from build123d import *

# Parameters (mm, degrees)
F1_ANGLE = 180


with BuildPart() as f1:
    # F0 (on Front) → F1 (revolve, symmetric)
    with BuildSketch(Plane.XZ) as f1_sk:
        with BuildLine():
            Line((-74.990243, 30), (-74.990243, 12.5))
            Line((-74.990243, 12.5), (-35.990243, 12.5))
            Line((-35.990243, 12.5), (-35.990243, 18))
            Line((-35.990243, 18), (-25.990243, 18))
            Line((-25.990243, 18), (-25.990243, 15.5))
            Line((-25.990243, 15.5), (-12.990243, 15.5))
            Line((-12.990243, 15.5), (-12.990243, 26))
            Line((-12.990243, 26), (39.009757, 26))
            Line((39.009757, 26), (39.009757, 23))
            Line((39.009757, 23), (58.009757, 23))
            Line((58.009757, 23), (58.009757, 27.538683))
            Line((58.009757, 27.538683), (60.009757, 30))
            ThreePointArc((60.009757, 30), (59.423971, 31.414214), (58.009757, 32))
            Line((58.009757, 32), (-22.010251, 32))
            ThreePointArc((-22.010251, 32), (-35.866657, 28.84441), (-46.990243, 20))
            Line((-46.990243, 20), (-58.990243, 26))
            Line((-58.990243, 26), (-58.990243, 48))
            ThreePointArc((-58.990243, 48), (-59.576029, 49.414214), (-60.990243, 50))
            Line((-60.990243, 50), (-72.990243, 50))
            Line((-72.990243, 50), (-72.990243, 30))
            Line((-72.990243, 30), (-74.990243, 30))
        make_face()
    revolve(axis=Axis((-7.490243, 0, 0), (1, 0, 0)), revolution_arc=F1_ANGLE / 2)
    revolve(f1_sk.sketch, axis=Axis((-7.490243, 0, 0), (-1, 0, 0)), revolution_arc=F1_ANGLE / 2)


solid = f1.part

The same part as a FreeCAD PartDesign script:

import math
import FreeCAD as App
import Part
import Sketcher

V = App.Vector
Q = App.Units.Quantity

doc = App.newDocument("Part")
body = doc.addObject("PartDesign::Body", "Body")

# Sketch on XZ plane
sketch1 = doc.addObject("Sketcher::SketchObject", "Sketch")
body.addObject(sketch1)
sketch1.AttachmentSupport = (doc.XZ_Plane, [""])
sketch1.MapMode = "FlatFace"
sketch1.addGeometry([
    Part.LineSegment(V(-75, 30, 0), V(-75, 12.5, 0)),  # 0
    Part.LineSegment(V(-75, 12.5, 0), V(-36, 12.5, 0)),  # 1
    Part.LineSegment(V(-36, 12.5, 0), V(-36, 18, 0)),  # 2
    Part.LineSegment(V(-36, 18, 0), V(-26, 18, 0)),  # 3
    Part.LineSegment(V(-26, 18, 0), V(-26, 15.5, 0)),  # 4
    Part.LineSegment(V(-26, 15.5, 0), V(-13, 15.5, 0)),  # 5
    Part.LineSegment(V(-13, 15.5, 0), V(-13, 26, 0)),  # 6
    Part.LineSegment(V(-13, 26, 0), V(39, 26, 0)),  # 7
    Part.LineSegment(V(39, 26, 0), V(39, 23, 0)),  # 8
    Part.LineSegment(V(39, 23, 0), V(58, 23, 0)),  # 9
    Part.LineSegment(V(58, 23, 0), V(58, 27.5, 0)),  # 10
    Part.LineSegment(V(58, 27.5, 0), V(60, 30, 0)),  # 11
    Part.ArcOfCircle(Part.Circle(V(58, 30, 0), V(0, 0, 1), 2), math.radians(0), math.radians(90)),  # 12
    Part.LineSegment(V(58, 32, 0), V(-22, 32, 0)),  # 13
    Part.ArcOfCircle(Part.Circle(V(-22, 0, 0), V(0, 0, 1), 32), math.radians(90), math.radians(141)),  # 14
    Part.LineSegment(V(-47, 20, 0), V(-59, 26, 0)),  # 15
    Part.LineSegment(V(-59, 26, 0), V(-59, 48, 0)),  # 16
    Part.ArcOfCircle(Part.Circle(V(-61, 48, 0), V(0, 0, 1), 2), math.radians(0), math.radians(90)),  # 17
    Part.LineSegment(V(-61, 50, 0), V(-73, 50, 0)),  # 18
    Part.LineSegment(V(-73, 50, 0), V(-73, 30, 0)),  # 19
    Part.LineSegment(V(-73, 30, 0), V(-75, 30, 0)),  # 20
], False)
sketch1.addConstraint([
    Sketcher.Constraint("Coincident", 0, 2, 1, 1),
    Sketcher.Constraint("Coincident", 1, 2, 2, 1),
    Sketcher.Constraint("Coincident", 2, 2, 3, 1),
    Sketcher.Constraint("Coincident", 3, 2, 4, 1),
    Sketcher.Constraint("Coincident", 4, 2, 5, 1),
    Sketcher.Constraint("Coincident", 5, 2, 6, 1),
    Sketcher.Constraint("Coincident", 6, 2, 7, 1),
    Sketcher.Constraint("Coincident", 7, 2, 8, 1),
    Sketcher.Constraint("Coincident", 8, 2, 9, 1),
    Sketcher.Constraint("Coincident", 9, 2, 10, 1),
    Sketcher.Constraint("Coincident", 10, 2, 11, 1),
    Sketcher.Constraint("Coincident", 11, 2, 12, 1),
    Sketcher.Constraint("Tangent", 12, 2, 13, 1),
    Sketcher.Constraint("Tangent", 13, 2, 14, 1),
    Sketcher.Constraint("Coincident", 14, 2, 15, 1),
    Sketcher.Constraint("Coincident", 15, 2, 16, 1),
    Sketcher.Constraint("Tangent", 16, 2, 17, 1),
    Sketcher.Constraint("Tangent", 17, 2, 18, 1),
    Sketcher.Constraint("Coincident", 18, 2, 19, 1),
    Sketcher.Constraint("Coincident", 19, 2, 20, 1),
    Sketcher.Constraint("Coincident", 20, 2, 0, 1),
    Sketcher.Constraint("Vertical", 0),
    Sketcher.Constraint("Horizontal", 1),
    Sketcher.Constraint("Vertical", 2),
    Sketcher.Constraint("Horizontal", 3),
    Sketcher.Constraint("Vertical", 4),
    Sketcher.Constraint("Horizontal", 5),
    Sketcher.Constraint("Vertical", 6),
    Sketcher.Constraint("Horizontal", 7),
    Sketcher.Constraint("Vertical", 8),
    Sketcher.Constraint("Horizontal", 9),
    Sketcher.Constraint("Vertical", 10),
    Sketcher.Constraint("Horizontal", 13),
    Sketcher.Constraint("Vertical", 16),
    Sketcher.Constraint("Horizontal", 18),
    Sketcher.Constraint("Vertical", 19),
    Sketcher.Constraint("Horizontal", 20),
    Sketcher.Constraint("Equal", 12, 17),
    Sketcher.Constraint("Horizontal", 12, 3, 11, 2),
    Sketcher.Constraint("Horizontal", 7, 2, 15, 2),
    Sketcher.Constraint("Horizontal", 11, 2, 19, 2),
    Sketcher.Constraint("Vertical", 12, 3, 9, 2),
    Sketcher.Constraint("Radius", 12, Q("1.999999 mm")),
    Sketcher.Constraint("DistanceX", 1, 1, 1, 2, Q("39 mm")),
    Sketcher.Constraint("DistanceX", 3, 1, 3, 2, Q("10 mm")),
    Sketcher.Constraint("DistanceX", 5, 1, 5, 2, Q("13 mm")),
    Sketcher.Constraint("DistanceX", 7, 1, 7, 2, Q("52 mm")),
    Sketcher.Constraint("DistanceX", 9, 1, 9, 2, Q("19 mm")),
    Sketcher.Constraint("DistanceX", 18, 2, 18, 1, Q("12 mm")),
    Sketcher.Constraint("DistanceX", 20, 2, 20, 1, Q("2 mm")),
    Sketcher.Constraint("DistanceY", 8, 2, 8, 1, Q("3 mm")),
    Sketcher.Constraint("DistanceY", 16, 1, 16, 2, Q("22 mm")),
    Sketcher.Constraint("DistanceY", 19, 2, 19, 1, Q("20 mm")),
    Sketcher.Constraint("DistanceY", 0, 2, 0, 1, Q("17.5 mm")),
    Sketcher.Constraint("DistanceY", 2, 1, 2, 2, Q("5.5 mm")),
    Sketcher.Constraint("DistanceY", 4, 2, 4, 1, Q("2.5 mm")),
    Sketcher.Constraint("DistanceY", -1, 1, 12, 3, Q("30.000001 mm")),
    Sketcher.Constraint("DistanceY", -1, 1, 14, 2, Q("20 mm")),
    Sketcher.Constraint("DistanceX", 14, 2, 2, 2, Q("11 mm")),
    Sketcher.Constraint("Radius", 14, Q("32.000004 mm")),
    Sketcher.Constraint("DistanceY", 10, 1, 10, 2, Q("4.538683 mm")),
    Sketcher.Constraint("DistanceX", -1, 1, 12, 3, Q("58.009758 mm")),
])
revolution = doc.addObject("PartDesign::Revolution", "Revolution")
body.addObject(revolution)
revolution.Profile = sketch1
revolution.ReferenceAxis = (sketch1, ["H_Axis"])
revolution.Angle = 90

# Sketch on XZ plane
sketch2 = doc.addObject("Sketcher::SketchObject", "Sketch001")
body.addObject(sketch2)
sketch2.AttachmentSupport = (doc.XZ_Plane, [""])
sketch2.MapMode = "FlatFace"
sketch2.addGeometry([
    Part.LineSegment(V(-75, 30, 0), V(-75, 12.5, 0)),  # 0
    Part.LineSegment(V(-75, 12.5, 0), V(-36, 12.5, 0)),  # 1
    Part.LineSegment(V(-36, 12.5, 0), V(-36, 18, 0)),  # 2
    Part.LineSegment(V(-36, 18, 0), V(-26, 18, 0)),  # 3
    Part.LineSegment(V(-26, 18, 0), V(-26, 15.5, 0)),  # 4
    Part.LineSegment(V(-26, 15.5, 0), V(-13, 15.5, 0)),  # 5
    Part.LineSegment(V(-13, 15.5, 0), V(-13, 26, 0)),  # 6
    Part.LineSegment(V(-13, 26, 0), V(39, 26, 0)),  # 7
    Part.LineSegment(V(39, 26, 0), V(39, 23, 0)),  # 8
    Part.LineSegment(V(39, 23, 0), V(58, 23, 0)),  # 9
    Part.LineSegment(V(58, 23, 0), V(58, 27.5, 0)),  # 10
    Part.LineSegment(V(58, 27.5, 0), V(60, 30, 0)),  # 11
    Part.ArcOfCircle(Part.Circle(V(58, 30, 0), V(0, 0, 1), 2), math.radians(0), math.radians(90)),  # 12
    Part.LineSegment(V(58, 32, 0), V(-22, 32, 0)),  # 13
    Part.ArcOfCircle(Part.Circle(V(-22, 0, 0), V(0, 0, 1), 32), math.radians(90), math.radians(141)),  # 14
    Part.LineSegment(V(-47, 20, 0), V(-59, 26, 0)),  # 15
    Part.LineSegment(V(-59, 26, 0), V(-59, 48, 0)),  # 16
    Part.ArcOfCircle(Part.Circle(V(-61, 48, 0), V(0, 0, 1), 2), math.radians(0), math.radians(90)),  # 17
    Part.LineSegment(V(-61, 50, 0), V(-73, 50, 0)),  # 18
    Part.LineSegment(V(-73, 50, 0), V(-73, 30, 0)),  # 19
    Part.LineSegment(V(-73, 30, 0), V(-75, 30, 0)),  # 20
], False)
sketch2.addConstraint([
    Sketcher.Constraint("Coincident", 0, 2, 1, 1),
    Sketcher.Constraint("Coincident", 1, 2, 2, 1),
    Sketcher.Constraint("Coincident", 2, 2, 3, 1),
    Sketcher.Constraint("Coincident", 3, 2, 4, 1),
    Sketcher.Constraint("Coincident", 4, 2, 5, 1),
    Sketcher.Constraint("Coincident", 5, 2, 6, 1),
    Sketcher.Constraint("Coincident", 6, 2, 7, 1),
    Sketcher.Constraint("Coincident", 7, 2, 8, 1),
    Sketcher.Constraint("Coincident", 8, 2, 9, 1),
    Sketcher.Constraint("Coincident", 9, 2, 10, 1),
    Sketcher.Constraint("Coincident", 10, 2, 11, 1),
    Sketcher.Constraint("Coincident", 11, 2, 12, 1),
    Sketcher.Constraint("Tangent", 12, 2, 13, 1),
    Sketcher.Constraint("Tangent", 13, 2, 14, 1),
    Sketcher.Constraint("Coincident", 14, 2, 15, 1),
    Sketcher.Constraint("Coincident", 15, 2, 16, 1),
    Sketcher.Constraint("Tangent", 16, 2, 17, 1),
    Sketcher.Constraint("Tangent", 17, 2, 18, 1),
    Sketcher.Constraint("Coincident", 18, 2, 19, 1),
    Sketcher.Constraint("Coincident", 19, 2, 20, 1),
    Sketcher.Constraint("Coincident", 20, 2, 0, 1),
    Sketcher.Constraint("Vertical", 0),
    Sketcher.Constraint("Horizontal", 1),
    Sketcher.Constraint("Vertical", 2),
    Sketcher.Constraint("Horizontal", 3),
    Sketcher.Constraint("Vertical", 4),
    Sketcher.Constraint("Horizontal", 5),
    Sketcher.Constraint("Vertical", 6),
    Sketcher.Constraint("Horizontal", 7),
    Sketcher.Constraint("Vertical", 8),
    Sketcher.Constraint("Horizontal", 9),
    Sketcher.Constraint("Vertical", 10),
    Sketcher.Constraint("Horizontal", 13),
    Sketcher.Constraint("Vertical", 16),
    Sketcher.Constraint("Horizontal", 18),
    Sketcher.Constraint("Vertical", 19),
    Sketcher.Constraint("Horizontal", 20),
    Sketcher.Constraint("Equal", 12, 17),
    Sketcher.Constraint("Horizontal", 12, 3, 11, 2),
    Sketcher.Constraint("Horizontal", 7, 2, 15, 2),
    Sketcher.Constraint("Horizontal", 11, 2, 19, 2),
    Sketcher.Constraint("Vertical", 12, 3, 9, 2),
    Sketcher.Constraint("Radius", 12, Q("1.999999 mm")),
    Sketcher.Constraint("DistanceX", 1, 1, 1, 2, Q("39 mm")),
    Sketcher.Constraint("DistanceX", 3, 1, 3, 2, Q("10 mm")),
    Sketcher.Constraint("DistanceX", 5, 1, 5, 2, Q("13 mm")),
    Sketcher.Constraint("DistanceX", 7, 1, 7, 2, Q("52 mm")),
    Sketcher.Constraint("DistanceX", 9, 1, 9, 2, Q("19 mm")),
    Sketcher.Constraint("DistanceX", 18, 2, 18, 1, Q("12 mm")),
    Sketcher.Constraint("DistanceX", 20, 2, 20, 1, Q("2 mm")),
    Sketcher.Constraint("DistanceY", 8, 2, 8, 1, Q("3 mm")),
    Sketcher.Constraint("DistanceY", 16, 1, 16, 2, Q("22 mm")),
    Sketcher.Constraint("DistanceY", 19, 2, 19, 1, Q("20 mm")),
    Sketcher.Constraint("DistanceY", 0, 2, 0, 1, Q("17.5 mm")),
    Sketcher.Constraint("DistanceY", 2, 1, 2, 2, Q("5.5 mm")),
    Sketcher.Constraint("DistanceY", 4, 2, 4, 1, Q("2.5 mm")),
    Sketcher.Constraint("DistanceY", -1, 1, 12, 3, Q("30.000001 mm")),
    Sketcher.Constraint("DistanceY", -1, 1, 14, 2, Q("20 mm")),
    Sketcher.Constraint("DistanceX", 14, 2, 2, 2, Q("11 mm")),
    Sketcher.Constraint("Radius", 14, Q("32.000004 mm")),
    Sketcher.Constraint("DistanceY", 10, 1, 10, 2, Q("4.538683 mm")),
    Sketcher.Constraint("DistanceX", -1, 1, 12, 3, Q("58.009758 mm")),
])
revolution2 = doc.addObject("PartDesign::Revolution", "Revolution001")
body.addObject(revolution2)
revolution2.Profile = sketch2
revolution2.ReferenceAxis = (sketch2, ["H_Axis"])
revolution2.Angle = 90
revolution2.Reversed = True

doc.recompute()
